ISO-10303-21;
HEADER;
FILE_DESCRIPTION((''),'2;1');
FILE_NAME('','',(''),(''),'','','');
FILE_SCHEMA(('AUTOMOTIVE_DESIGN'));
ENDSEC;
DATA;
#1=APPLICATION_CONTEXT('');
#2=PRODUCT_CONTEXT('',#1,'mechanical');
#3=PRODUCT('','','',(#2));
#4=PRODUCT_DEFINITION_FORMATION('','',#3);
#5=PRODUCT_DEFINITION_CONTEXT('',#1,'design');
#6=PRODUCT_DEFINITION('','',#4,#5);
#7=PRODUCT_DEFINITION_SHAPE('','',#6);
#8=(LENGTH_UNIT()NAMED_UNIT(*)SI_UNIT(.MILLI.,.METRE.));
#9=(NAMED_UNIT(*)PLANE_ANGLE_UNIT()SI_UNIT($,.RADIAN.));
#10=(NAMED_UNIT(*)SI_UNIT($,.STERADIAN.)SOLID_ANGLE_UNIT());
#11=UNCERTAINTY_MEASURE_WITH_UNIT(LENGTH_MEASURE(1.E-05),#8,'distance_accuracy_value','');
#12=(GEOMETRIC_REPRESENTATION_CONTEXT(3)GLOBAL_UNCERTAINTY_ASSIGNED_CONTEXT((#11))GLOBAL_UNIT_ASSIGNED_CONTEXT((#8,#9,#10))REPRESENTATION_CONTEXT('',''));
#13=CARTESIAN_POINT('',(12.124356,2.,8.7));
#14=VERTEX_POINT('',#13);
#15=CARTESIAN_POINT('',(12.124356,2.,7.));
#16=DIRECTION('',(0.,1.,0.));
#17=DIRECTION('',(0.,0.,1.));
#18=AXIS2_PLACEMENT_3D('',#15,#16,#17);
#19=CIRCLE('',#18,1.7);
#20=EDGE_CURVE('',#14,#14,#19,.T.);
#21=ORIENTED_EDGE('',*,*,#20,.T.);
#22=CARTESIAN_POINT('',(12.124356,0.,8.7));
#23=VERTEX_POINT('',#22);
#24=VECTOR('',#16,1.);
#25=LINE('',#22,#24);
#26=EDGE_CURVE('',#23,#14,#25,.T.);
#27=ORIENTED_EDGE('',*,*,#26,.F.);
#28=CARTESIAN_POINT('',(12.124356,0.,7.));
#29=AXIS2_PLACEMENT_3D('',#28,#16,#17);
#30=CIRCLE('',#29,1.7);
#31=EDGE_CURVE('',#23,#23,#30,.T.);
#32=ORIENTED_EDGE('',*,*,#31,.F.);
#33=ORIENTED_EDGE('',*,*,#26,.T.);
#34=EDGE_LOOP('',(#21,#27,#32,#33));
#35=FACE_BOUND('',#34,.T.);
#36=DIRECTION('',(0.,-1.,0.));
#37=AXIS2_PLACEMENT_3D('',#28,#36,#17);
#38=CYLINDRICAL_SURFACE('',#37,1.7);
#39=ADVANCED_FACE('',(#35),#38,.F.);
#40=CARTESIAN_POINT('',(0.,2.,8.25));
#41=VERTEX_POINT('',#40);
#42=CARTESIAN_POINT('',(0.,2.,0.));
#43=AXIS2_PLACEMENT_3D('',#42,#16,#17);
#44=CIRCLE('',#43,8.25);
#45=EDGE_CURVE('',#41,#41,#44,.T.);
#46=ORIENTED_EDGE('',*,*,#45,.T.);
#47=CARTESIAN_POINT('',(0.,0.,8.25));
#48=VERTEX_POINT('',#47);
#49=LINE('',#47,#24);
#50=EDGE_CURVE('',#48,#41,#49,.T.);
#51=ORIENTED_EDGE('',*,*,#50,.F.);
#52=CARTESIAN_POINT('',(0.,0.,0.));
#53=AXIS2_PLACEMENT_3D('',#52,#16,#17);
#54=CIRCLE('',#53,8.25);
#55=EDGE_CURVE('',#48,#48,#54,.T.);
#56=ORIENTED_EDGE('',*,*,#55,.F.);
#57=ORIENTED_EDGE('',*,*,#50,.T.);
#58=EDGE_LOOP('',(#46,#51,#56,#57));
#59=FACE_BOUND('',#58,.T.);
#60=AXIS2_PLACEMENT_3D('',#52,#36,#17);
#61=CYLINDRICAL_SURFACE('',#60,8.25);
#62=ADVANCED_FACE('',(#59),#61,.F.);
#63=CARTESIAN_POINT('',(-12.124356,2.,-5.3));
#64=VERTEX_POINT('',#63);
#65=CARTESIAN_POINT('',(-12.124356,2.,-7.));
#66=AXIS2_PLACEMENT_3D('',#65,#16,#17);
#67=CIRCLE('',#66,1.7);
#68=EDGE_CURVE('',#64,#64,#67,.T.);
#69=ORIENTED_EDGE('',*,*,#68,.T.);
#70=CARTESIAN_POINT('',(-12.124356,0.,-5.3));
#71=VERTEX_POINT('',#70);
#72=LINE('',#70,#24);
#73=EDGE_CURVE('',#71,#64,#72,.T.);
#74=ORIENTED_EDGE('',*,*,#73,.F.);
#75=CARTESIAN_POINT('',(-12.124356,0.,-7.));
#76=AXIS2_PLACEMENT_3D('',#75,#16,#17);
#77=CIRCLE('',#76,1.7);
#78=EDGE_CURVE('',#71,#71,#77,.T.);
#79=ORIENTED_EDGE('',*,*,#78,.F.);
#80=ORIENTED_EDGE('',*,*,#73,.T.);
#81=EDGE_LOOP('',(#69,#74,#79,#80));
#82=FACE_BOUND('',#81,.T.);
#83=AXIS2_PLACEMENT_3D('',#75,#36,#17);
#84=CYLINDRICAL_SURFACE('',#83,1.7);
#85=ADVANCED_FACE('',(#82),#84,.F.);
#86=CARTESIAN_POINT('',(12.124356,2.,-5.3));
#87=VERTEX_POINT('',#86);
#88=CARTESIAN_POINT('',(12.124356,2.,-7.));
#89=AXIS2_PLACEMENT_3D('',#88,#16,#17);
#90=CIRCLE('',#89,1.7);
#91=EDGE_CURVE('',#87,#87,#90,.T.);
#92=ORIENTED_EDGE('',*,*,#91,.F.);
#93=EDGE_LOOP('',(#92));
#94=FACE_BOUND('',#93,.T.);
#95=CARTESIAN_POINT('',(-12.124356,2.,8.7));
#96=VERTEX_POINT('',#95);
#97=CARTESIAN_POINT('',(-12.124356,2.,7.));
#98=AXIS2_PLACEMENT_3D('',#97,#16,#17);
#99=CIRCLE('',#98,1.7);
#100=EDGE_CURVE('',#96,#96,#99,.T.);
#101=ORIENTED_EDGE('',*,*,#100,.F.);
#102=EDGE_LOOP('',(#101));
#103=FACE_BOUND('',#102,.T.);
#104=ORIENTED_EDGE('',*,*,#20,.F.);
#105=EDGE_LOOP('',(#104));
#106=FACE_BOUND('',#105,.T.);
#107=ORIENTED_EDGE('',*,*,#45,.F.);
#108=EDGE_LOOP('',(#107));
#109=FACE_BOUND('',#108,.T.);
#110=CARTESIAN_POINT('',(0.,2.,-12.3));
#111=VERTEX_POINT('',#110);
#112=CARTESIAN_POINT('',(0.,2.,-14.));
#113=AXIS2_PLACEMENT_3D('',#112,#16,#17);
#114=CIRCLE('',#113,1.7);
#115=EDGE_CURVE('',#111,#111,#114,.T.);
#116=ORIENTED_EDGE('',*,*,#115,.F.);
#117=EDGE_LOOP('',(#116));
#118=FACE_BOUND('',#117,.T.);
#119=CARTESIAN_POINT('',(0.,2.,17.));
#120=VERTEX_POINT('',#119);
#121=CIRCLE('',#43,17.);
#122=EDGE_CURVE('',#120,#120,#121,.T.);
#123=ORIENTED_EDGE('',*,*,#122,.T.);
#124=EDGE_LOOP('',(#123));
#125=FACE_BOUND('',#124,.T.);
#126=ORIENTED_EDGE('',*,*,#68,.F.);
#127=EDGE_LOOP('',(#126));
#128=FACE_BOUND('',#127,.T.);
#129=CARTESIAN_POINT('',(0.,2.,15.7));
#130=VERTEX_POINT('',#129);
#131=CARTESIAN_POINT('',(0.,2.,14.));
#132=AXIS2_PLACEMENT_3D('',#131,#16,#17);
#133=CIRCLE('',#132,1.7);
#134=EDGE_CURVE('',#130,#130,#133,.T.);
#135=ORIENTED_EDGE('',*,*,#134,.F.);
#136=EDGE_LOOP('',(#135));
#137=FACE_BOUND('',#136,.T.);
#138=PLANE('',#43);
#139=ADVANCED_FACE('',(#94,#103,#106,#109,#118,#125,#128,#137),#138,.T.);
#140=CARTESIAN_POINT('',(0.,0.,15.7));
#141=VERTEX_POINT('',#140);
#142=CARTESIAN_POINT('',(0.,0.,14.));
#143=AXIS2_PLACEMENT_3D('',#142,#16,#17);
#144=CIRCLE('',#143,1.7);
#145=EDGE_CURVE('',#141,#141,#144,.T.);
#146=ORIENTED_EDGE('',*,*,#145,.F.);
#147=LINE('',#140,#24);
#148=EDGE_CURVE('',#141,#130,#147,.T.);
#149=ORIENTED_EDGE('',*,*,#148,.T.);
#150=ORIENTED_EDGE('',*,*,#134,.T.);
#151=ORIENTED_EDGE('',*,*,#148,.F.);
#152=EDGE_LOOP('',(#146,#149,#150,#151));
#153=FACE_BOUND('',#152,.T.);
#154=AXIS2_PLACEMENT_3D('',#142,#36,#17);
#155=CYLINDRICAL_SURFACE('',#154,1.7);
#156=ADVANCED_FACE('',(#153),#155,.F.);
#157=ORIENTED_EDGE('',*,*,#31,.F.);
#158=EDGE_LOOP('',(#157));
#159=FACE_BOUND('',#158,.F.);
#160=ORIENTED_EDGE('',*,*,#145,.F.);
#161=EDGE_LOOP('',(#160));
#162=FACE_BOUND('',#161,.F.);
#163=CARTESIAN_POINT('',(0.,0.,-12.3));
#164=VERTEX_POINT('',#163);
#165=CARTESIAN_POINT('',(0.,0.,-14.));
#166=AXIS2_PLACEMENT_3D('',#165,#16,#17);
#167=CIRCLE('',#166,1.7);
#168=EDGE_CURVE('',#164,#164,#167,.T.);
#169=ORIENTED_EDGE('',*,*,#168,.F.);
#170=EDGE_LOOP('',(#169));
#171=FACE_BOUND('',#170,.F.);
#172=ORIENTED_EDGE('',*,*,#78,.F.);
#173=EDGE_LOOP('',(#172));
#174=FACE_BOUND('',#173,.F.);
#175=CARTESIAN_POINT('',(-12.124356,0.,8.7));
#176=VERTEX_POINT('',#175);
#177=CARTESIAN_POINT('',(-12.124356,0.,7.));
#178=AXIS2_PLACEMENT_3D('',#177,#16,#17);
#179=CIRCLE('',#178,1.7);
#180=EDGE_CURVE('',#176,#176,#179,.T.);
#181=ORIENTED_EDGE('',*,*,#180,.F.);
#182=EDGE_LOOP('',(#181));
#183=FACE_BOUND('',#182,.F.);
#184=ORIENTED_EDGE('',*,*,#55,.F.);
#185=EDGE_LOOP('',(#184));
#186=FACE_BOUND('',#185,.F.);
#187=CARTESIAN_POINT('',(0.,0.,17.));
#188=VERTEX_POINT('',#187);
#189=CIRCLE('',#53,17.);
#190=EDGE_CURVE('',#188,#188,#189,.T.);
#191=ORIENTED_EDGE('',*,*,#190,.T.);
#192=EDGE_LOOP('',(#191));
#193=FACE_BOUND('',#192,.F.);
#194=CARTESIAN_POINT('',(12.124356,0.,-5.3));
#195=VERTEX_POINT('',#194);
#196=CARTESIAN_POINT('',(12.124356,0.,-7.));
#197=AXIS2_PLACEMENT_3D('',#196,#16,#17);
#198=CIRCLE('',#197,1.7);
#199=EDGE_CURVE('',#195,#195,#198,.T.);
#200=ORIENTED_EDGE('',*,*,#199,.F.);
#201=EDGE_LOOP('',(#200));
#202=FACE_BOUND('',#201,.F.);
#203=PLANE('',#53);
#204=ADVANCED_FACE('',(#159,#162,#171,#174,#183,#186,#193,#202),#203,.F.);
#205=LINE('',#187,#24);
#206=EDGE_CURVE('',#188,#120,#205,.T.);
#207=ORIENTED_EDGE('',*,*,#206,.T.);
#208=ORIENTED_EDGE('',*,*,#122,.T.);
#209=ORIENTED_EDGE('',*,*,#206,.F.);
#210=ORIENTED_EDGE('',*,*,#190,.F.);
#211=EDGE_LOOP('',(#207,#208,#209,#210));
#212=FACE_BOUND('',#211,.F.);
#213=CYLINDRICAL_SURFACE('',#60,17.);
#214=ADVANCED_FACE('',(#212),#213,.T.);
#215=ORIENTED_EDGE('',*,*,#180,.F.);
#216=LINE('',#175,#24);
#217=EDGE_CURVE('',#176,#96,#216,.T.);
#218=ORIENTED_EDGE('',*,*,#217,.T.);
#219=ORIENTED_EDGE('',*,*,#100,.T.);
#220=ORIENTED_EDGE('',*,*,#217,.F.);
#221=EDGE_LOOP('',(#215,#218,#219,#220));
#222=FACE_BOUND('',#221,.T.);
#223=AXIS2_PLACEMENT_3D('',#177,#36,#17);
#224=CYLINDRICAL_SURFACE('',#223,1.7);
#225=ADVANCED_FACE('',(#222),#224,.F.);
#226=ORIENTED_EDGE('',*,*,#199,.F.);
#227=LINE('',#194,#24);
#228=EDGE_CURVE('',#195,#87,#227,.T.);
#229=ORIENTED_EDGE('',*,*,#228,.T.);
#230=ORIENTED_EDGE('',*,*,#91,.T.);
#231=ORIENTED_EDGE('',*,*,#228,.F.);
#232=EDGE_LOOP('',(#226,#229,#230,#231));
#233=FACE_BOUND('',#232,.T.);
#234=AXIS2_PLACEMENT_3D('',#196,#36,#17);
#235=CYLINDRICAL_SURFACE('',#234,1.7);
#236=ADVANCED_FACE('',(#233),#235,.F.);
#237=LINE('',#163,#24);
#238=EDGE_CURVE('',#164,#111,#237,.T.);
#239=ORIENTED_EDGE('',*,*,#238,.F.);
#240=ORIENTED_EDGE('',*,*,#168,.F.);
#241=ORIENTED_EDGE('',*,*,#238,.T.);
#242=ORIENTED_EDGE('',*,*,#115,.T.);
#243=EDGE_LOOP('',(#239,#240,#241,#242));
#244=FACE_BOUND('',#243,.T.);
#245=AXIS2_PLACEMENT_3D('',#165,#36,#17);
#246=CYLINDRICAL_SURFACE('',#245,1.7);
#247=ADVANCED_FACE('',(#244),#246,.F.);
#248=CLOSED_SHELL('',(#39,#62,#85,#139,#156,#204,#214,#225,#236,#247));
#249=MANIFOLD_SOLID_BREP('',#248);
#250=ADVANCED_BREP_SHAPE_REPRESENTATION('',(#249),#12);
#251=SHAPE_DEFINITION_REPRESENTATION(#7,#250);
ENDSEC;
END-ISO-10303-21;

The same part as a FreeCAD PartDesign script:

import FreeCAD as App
import Part
import Sketcher
Q = App.Units.Quantity

doc = App.newDocument("Part")
body = doc.addObject("PartDesign::Body", "Body")

sketch1 = body.newObject("Sketcher::SketchObject", "Sketch")
sketch1.AttachmentSupport = (doc.getObject("XZ_Plane"), [""])
sketch1.MapMode = "FlatFace"
sketch1.addGeometry([
    Part.Circle(App.Vector(0, 0, 0), App.Vector(0, 0, 1), 17),
    Part.Circle(App.Vector(-12.1, -7, 0), App.Vector(0, 0, 1), 1.7),
    Part.Circle(App.Vector(-12.1, 7, 0), App.Vector(0, 0, 1), 1.7),
    Part.Circle(App.Vector(0, -14, 0), App.Vector(0, 0, 1), 1.7),
    Part.Circle(App.Vector(12.1, -7, 0), App.Vector(0, 0, 1), 1.7),
    Part.Circle(App.Vector(0, 0, 0), App.Vector(0, 0, 1), 8.2),
    Part.Circle(App.Vector(0, 14, 0), App.Vector(0, 0, 1), 1.7),
    Part.Circle(App.Vector(12.1, 7, 0), App.Vector(0, 0, 1), 1.7),
], False)
sketch1.addConstraint([
    Sketcher.Constraint("Coincident", 0, 3, -1, 1),
    Sketcher.Constraint("Coincident", 5, 3, -1, 1),
    Sketcher.Constraint("Equal", 1, 2),
    Sketcher.Constraint("Equal", 2, 3),
    Sketcher.Constraint("Equal", 3, 4),
    Sketcher.Constraint("Equal", 4, 6),
    Sketcher.Constraint("Equal", 6, 7),
    Sketcher.Constraint("Symmetric", 2, 3, 4, 3, -1, 1),
    Sketcher.Constraint("Symmetric", 3, 3, 6, 3, -1, 1),
    Sketcher.Constraint("Symmetric", 1, 3, 7, 3, -1, 1),
    Sketcher.Constraint("Symmetric", 1, 3, 4, 3, -2),
    Sketcher.Constraint("PointOnObject", 3, 3, -2),
    Sketcher.Constraint("Diameter", 0, Q("34 mm")),
    Sketcher.Constraint("Diameter", 1, Q("3.4 mm")),
    Sketcher.Constraint("Diameter", 5, Q("16.5 mm")),
    Sketcher.Constraint("DistanceY", 1, 3, -1, 1, Q("7 mm")),
    Sketcher.Constraint("DistanceY", 3, 3, -1, 1, Q("14 mm")),
    Sketcher.Constraint("DistanceX", 1, 3, 4, 3, Q("24.248711 mm")),
])
pad1 = body.newObject("PartDesign::Pad", "Pad")
pad1.Profile = sketch1
pad1.Length = 2
pad1.Reversed = True

doc.recompute()
